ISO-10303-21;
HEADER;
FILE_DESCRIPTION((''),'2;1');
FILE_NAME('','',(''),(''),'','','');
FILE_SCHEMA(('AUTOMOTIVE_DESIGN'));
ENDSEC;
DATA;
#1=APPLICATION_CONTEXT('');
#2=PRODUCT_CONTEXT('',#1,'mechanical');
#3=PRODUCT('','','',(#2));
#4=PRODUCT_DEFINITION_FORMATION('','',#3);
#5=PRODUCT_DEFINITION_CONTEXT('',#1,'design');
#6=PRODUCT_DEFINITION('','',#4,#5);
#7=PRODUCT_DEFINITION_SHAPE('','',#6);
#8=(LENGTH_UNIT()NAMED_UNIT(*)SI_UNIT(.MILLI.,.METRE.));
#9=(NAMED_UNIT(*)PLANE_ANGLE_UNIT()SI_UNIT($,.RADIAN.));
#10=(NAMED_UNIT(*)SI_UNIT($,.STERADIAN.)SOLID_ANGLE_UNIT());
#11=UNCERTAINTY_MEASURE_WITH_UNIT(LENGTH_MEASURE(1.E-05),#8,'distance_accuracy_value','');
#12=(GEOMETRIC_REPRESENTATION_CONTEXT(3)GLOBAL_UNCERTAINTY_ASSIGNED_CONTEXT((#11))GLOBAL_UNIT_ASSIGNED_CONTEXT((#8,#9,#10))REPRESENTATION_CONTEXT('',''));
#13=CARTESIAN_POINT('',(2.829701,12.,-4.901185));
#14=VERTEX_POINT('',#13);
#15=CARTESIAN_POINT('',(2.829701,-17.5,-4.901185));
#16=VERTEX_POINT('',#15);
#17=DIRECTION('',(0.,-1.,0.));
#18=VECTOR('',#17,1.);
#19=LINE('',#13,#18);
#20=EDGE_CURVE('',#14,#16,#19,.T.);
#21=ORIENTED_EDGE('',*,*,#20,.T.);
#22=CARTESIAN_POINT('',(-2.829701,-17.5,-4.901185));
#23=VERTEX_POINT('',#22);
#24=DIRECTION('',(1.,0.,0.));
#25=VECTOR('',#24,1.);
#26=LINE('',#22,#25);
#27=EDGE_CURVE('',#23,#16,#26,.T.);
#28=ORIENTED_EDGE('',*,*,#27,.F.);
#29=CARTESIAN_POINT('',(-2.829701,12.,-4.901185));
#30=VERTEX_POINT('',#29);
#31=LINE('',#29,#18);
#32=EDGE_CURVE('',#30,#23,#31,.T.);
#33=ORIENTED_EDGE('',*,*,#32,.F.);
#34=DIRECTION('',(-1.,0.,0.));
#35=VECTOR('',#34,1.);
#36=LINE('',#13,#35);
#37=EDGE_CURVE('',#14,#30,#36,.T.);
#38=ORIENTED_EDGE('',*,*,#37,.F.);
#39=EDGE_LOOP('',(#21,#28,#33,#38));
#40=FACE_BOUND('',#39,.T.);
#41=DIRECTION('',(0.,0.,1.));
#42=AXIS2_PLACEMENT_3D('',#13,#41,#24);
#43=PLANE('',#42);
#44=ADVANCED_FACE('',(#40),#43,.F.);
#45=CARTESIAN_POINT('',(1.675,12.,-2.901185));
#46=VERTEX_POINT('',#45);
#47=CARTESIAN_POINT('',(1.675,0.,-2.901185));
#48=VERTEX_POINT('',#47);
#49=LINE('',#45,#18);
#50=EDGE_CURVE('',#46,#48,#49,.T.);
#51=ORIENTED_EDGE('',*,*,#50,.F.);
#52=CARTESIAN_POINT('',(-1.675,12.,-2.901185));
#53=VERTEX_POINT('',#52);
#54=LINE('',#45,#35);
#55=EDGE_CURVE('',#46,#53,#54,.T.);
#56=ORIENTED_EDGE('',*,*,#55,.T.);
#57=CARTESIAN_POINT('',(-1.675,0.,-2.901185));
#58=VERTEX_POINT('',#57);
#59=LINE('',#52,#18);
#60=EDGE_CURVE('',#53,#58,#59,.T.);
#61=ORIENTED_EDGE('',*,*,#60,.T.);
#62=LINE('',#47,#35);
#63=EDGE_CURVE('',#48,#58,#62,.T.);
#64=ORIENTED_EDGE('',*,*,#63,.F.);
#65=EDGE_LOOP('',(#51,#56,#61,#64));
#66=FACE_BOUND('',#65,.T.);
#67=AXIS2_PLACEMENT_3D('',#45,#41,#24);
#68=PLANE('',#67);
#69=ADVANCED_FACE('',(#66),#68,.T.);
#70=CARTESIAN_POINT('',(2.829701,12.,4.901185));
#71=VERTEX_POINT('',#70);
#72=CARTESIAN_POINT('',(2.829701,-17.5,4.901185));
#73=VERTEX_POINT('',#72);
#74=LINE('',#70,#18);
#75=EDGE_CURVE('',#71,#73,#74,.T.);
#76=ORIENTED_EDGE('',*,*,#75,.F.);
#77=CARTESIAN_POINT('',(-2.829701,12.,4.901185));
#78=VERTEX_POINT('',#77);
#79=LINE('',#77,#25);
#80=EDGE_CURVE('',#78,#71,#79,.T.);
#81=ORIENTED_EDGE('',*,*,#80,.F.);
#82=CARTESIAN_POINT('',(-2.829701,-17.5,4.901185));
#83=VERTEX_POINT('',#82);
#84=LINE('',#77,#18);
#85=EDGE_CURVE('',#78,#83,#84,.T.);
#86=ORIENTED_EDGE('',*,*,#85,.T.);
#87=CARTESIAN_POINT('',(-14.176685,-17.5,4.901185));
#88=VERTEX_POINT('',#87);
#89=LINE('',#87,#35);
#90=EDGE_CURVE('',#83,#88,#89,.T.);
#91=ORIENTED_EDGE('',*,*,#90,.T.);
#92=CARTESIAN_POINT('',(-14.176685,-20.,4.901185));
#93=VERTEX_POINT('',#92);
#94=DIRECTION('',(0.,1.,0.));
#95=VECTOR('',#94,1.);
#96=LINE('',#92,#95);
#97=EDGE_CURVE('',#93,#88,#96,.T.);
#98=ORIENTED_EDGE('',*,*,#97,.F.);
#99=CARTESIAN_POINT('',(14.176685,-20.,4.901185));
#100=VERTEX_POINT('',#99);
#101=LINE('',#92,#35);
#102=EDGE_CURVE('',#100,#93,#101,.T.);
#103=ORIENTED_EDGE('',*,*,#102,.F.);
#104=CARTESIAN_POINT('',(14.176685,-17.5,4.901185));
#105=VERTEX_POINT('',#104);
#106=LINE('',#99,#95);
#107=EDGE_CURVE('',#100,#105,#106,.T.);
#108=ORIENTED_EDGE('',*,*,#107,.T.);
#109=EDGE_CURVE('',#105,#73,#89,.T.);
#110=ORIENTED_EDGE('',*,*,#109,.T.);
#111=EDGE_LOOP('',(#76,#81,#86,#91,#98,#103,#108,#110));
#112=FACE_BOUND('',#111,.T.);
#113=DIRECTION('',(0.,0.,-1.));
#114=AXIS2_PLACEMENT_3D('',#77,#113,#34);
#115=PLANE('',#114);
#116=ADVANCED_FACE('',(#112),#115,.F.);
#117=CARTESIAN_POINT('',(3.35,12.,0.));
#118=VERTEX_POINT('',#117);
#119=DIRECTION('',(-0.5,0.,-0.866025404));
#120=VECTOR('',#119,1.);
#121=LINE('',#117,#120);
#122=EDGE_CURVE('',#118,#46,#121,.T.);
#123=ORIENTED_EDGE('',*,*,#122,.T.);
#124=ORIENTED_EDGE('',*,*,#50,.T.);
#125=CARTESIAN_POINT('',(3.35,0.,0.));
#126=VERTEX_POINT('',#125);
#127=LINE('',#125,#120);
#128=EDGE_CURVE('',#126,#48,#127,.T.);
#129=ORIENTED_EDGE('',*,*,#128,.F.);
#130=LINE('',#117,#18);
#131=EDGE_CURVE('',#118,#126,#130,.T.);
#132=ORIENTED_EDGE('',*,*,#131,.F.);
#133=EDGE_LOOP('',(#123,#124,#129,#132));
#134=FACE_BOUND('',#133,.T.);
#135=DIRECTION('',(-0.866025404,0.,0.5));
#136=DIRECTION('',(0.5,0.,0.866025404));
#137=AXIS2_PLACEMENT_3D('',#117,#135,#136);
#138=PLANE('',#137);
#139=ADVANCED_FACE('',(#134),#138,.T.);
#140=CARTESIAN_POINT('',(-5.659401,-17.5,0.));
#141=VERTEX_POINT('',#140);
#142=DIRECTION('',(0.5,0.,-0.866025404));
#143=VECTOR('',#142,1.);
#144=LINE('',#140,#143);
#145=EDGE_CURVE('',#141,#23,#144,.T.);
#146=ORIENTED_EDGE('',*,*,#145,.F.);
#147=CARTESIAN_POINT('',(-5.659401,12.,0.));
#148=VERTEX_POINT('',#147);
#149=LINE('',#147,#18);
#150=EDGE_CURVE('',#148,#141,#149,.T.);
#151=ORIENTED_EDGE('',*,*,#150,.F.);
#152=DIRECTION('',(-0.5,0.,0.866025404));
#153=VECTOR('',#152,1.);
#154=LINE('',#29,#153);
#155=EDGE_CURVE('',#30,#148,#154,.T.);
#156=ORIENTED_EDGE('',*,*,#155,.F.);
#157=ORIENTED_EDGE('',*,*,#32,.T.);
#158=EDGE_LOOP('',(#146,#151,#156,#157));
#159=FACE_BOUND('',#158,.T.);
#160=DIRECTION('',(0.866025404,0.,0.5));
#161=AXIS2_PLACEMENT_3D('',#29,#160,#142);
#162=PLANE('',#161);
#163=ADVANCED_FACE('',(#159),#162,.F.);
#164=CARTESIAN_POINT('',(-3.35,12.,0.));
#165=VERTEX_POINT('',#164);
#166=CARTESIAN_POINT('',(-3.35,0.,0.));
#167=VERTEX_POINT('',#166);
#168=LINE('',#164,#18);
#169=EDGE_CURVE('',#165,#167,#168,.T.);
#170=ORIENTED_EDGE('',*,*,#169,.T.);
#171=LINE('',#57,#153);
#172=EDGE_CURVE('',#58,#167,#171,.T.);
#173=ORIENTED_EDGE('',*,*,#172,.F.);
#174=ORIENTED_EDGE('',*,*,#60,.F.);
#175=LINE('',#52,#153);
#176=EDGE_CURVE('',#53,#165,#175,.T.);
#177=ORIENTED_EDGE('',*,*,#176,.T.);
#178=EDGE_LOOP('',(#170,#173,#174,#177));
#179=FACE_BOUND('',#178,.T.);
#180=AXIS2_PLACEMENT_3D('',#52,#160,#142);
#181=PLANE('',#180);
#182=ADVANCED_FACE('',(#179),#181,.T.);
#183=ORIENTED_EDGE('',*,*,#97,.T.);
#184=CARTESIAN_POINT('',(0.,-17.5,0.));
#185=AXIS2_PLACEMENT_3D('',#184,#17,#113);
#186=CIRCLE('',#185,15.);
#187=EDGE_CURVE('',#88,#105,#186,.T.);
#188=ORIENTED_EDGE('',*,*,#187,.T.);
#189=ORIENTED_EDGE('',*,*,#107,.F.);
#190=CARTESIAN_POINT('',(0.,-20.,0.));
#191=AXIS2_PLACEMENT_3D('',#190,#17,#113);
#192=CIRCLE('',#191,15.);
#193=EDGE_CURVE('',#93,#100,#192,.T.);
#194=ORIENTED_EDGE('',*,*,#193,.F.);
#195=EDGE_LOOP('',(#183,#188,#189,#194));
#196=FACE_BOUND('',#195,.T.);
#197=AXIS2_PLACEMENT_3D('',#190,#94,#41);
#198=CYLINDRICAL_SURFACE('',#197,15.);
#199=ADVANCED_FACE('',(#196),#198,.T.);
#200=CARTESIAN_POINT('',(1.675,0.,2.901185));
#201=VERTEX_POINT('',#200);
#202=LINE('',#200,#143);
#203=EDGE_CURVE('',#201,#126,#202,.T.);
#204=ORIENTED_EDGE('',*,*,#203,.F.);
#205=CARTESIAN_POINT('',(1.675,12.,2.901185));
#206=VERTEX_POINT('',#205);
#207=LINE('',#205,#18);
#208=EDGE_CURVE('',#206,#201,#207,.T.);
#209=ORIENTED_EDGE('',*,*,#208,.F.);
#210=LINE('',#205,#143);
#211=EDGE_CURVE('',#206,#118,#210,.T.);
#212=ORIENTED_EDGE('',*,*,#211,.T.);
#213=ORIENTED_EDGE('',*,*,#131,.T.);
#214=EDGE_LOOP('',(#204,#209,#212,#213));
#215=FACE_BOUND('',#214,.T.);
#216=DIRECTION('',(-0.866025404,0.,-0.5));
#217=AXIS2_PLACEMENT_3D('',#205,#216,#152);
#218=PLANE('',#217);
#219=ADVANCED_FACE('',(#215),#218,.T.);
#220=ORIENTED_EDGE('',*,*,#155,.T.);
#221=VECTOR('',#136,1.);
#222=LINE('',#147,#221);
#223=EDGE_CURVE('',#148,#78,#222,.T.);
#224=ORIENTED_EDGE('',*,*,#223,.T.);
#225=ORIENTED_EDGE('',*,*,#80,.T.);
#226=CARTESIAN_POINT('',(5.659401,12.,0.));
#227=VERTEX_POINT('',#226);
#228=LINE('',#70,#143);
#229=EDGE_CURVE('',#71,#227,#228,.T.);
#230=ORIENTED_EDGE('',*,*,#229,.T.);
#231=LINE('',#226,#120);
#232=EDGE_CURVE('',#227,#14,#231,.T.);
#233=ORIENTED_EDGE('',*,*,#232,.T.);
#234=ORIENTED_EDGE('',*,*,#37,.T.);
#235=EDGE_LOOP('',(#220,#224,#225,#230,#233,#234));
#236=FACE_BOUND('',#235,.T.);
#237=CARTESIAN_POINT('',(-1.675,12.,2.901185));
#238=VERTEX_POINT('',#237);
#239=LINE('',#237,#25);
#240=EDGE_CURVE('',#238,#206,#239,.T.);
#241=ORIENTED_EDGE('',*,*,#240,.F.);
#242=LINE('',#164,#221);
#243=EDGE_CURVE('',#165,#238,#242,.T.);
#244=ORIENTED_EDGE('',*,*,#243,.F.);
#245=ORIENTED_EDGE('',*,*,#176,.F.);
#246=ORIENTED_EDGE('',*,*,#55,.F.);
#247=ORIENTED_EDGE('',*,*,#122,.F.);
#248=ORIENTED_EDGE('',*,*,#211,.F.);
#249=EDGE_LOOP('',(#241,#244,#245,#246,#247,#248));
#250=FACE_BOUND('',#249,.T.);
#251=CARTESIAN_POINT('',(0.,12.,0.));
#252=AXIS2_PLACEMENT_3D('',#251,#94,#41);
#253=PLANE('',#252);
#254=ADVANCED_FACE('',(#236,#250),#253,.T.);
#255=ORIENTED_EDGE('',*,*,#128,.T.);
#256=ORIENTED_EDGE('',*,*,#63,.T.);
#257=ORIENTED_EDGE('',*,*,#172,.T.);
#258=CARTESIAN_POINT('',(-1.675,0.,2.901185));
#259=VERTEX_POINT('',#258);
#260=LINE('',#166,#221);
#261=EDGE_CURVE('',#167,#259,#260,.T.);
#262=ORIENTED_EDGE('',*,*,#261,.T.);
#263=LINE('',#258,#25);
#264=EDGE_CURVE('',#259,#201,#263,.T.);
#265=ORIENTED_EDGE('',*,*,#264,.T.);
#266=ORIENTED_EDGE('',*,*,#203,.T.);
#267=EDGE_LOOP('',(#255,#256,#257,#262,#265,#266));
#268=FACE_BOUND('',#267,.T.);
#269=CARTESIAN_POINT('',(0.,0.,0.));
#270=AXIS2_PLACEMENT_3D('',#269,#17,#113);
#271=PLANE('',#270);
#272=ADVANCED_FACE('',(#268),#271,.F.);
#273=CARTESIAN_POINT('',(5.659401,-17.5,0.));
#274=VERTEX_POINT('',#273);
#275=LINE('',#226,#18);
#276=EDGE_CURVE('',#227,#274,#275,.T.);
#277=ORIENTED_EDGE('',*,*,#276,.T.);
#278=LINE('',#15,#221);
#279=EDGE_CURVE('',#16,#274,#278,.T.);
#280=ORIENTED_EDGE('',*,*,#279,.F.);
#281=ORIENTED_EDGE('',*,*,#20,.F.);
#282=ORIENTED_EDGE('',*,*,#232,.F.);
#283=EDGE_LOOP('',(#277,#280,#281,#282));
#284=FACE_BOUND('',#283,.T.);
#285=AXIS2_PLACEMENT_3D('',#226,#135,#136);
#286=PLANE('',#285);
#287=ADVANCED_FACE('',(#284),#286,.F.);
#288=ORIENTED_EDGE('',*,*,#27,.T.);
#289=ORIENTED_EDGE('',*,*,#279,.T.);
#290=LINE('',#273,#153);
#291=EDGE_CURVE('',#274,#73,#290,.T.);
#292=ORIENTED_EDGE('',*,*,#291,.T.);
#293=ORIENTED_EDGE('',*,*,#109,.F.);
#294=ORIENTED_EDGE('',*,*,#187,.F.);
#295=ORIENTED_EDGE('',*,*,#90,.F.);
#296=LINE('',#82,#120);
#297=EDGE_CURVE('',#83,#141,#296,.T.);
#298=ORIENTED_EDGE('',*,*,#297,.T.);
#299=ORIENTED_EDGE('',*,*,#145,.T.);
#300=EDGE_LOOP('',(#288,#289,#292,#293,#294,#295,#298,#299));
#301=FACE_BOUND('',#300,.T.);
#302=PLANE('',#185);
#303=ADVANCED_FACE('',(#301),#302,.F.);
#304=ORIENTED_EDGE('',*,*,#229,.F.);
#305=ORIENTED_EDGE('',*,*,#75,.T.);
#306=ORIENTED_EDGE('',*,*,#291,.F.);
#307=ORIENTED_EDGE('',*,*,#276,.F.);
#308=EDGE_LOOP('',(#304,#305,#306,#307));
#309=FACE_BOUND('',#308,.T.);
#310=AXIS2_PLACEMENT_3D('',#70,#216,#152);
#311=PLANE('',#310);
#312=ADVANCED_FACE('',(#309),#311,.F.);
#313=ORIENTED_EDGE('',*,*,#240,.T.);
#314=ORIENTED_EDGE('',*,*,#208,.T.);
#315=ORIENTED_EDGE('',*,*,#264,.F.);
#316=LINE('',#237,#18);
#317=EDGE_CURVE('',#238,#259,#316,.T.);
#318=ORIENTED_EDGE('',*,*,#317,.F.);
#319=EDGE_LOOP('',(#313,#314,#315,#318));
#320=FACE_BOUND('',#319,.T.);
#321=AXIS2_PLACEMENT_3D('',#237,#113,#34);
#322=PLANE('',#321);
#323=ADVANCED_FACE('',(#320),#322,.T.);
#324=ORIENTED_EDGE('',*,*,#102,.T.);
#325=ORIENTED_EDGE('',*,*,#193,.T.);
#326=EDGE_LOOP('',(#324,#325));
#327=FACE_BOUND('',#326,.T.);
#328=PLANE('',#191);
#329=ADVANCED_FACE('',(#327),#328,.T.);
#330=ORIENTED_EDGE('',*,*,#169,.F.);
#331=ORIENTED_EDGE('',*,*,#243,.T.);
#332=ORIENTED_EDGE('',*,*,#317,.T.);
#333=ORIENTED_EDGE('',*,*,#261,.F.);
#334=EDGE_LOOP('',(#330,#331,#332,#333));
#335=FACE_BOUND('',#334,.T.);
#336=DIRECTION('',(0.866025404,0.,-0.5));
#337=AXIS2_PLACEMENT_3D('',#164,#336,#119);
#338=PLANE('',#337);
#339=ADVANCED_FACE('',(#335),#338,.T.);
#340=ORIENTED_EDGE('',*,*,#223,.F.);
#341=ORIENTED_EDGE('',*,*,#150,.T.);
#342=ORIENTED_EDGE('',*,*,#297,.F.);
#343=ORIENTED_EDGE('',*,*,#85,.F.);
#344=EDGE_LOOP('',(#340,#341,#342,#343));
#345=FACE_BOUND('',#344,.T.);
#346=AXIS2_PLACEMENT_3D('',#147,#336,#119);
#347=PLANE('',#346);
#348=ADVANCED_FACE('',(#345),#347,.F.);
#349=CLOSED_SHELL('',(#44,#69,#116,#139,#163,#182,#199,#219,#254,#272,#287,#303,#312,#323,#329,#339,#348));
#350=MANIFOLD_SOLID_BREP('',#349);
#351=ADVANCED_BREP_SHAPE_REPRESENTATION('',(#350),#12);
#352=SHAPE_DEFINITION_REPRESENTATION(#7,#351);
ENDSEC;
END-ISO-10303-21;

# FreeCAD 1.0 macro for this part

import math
import FreeCAD as App
import Part
import Sketcher

V = App.Vector
Q = App.Units.Quantity

doc = App.newDocument("Part")
body = doc.addObject("PartDesign::Body", "Body")

sketch1 = body.newObject("Sketcher::SketchObject", "Sketch")
sketch1.AttachmentSupport = (doc.getObject("XZ_Plane"), [""])
sketch1.MapMode = "FlatFace"
sketch1.addGeometry(Part.LineSegment(V(-2.8, -4.9, 0), V(-5.7, 0, 0)), False)
sketch1.addGeometry(Part.LineSegment(V(-5.7, 0, 0), V(-2.8, 4.9, 0)), False)
sketch1.addGeometry(Part.LineSegment(V(-2.8, 4.9, 0), V(2.8, 4.9, 0)), False)
sketch1.addGeometry(Part.LineSegment(V(2.8, 4.9, 0), V(5.7, 0, 0)), False)
sketch1.addGeometry(Part.LineSegment(V(5.7, 0, 0), V(2.8, -4.9, 0)), False)
sketch1.addGeometry(Part.LineSegment(V(2.8, -4.9, 0), V(-2.8, -4.9, 0)), False)
sketch1.addGeometry(Part.LineSegment(V(-3.4, 0, 0), V(-1.7, -2.9, 0)), False)
sketch1.addGeometry(Part.LineSegment(V(-1.7, -2.9, 0), V(1.7, -2.9, 0)), False)
sketch1.addGeometry(Part.LineSegment(V(1.7, -2.9, 0), V(3.4, 0, 0)), False)
sketch1.addGeometry(Part.LineSegment(V(3.4, 0, 0), V(1.7, 2.9, 0)), False)
sketch1.addGeometry(Part.LineSegment(V(1.7, 2.9, 0), V(-1.7, 2.9, 0)), False)
sketch1.addGeometry(Part.LineSegment(V(-1.7, 2.9, 0), V(-3.4, 0, 0)), False)
sketch1.addConstraint(Sketcher.Constraint("Coincident", 0, 2, 1, 1))
sketch1.addConstraint(Sketcher.Constraint("Coincident", 1, 2, 2, 1))
sketch1.addConstraint(Sketcher.Constraint("Coincident", 2, 2, 3, 1))
sketch1.addConstraint(Sketcher.Constraint("Coincident", 3, 2, 4, 1))
sketch1.addConstraint(Sketcher.Constraint("Coincident", 4, 2, 5, 1))
sketch1.addConstraint(Sketcher.Constraint("Coincident", 5, 2, 0, 1))
sketch1.addConstraint(Sketcher.Constraint("Coincident", 6, 2, 7, 1))
sketch1.addConstraint(Sketcher.Constraint("Coincident", 7, 2, 8, 1))
sketch1.addConstraint(Sketcher.Constraint("Coincident", 8, 2, 9, 1))
sketch1.addConstraint(Sketcher.Constraint("Coincident", 9, 2, 10, 1))
sketch1.addConstraint(Sketcher.Constraint("Coincident", 10, 2, 11, 1))
sketch1.addConstraint(Sketcher.Constraint("Coincident", 11, 2, 6, 1))
sketch1.addConstraint(Sketcher.Constraint("Horizontal", 2))
sketch1.addConstraint(Sketcher.Constraint("Horizontal", 5))
sketch1.addConstraint(Sketcher.Constraint("Horizontal", 7))
sketch1.addConstraint(Sketcher.Constraint("Horizontal", 10))
sketch1.addConstraint(Sketcher.Constraint("Symmetric", 0, 2, 3, 2, -1, 1))
sketch1.addConstraint(Sketcher.Constraint("Symmetric", 1, 2, 4, 2, -1, 1))
sketch1.addConstraint(Sketcher.Constraint("Symmetric", 6, 2, 9, 2, -1, 1))
sketch1.addConstraint(Sketcher.Constraint("Symmetric", 8, 2, 11, 2, -1, 1))
sketch1.addConstraint(Sketcher.Constraint("PointOnObject", 0, 2, -1))
sketch1.addConstraint(Sketcher.Constraint("PointOnObject", 8, 2, -1))
sketch1.addConstraint(Sketcher.Constraint("Parallel", 0, 3))
sketch1.addConstraint(Sketcher.Constraint("Parallel", 3, 6))
sketch1.addConstraint(Sketcher.Constraint("Parallel", 4, 8))
sketch1.addConstraint(Sketcher.Constraint("Parallel", 8, 11))
sketch1.addConstraint(Sketcher.Constraint("Vertical", 2, 2, 4, 2))
sketch1.addConstraint(Sketcher.Constraint("Angle", 0, Q("120 deg")))
sketch1.addConstraint(Sketcher.Constraint("DistanceY", 5, 2, 6, 2, 2.0))
sketch1.addConstraint(Sketcher.Constraint("DistanceX", 7, 1, 7, 2, 3.35))
sketch1.addConstraint(Sketcher.Constraint("Distance", 6, 3.35))
sketch1.addConstraint(Sketcher.Constraint("DistanceX", 2, 1, 2, 2, 5.659401))
pad1 = body.newObject("PartDesign::Pad", "Pad")
pad1.Profile = sketch1
pad1.Length = 12
pad1.Reversed = True

sketch2 = body.newObject("Sketcher::SketchObject", "Sketch001")
sketch2.AttachmentSupport = (doc.getObject("XZ_Plane"), [""])
sketch2.MapMode = "FlatFace"
sketch2.addGeometry(Part.LineSegment(V(-3, -5, 0), V(3, -5, 0)), False)
sketch2.addGeometry(Part.LineSegment(V(3, -5, 0), V(6, 0, 0)), False)
sketch2.addGeometry(Part.LineSegment(V(6, 0, 0), V(3, 5, 0)), False)
sketch2.addGeometry(Part.LineSegment(V(3, 5, 0), V(-3, 5, 0)), False)
sketch2.addGeometry(Part.LineSegment(V(-3, 5, 0), V(-6, 0, 0)), False)
sketch2.addGeometry(Part.LineSegment(V(-6, 0, 0), V(-3, -5, 0)), False)
sketch2.addConstraint(Sketcher.Constraint("Coincident", 0, 2, 1, 1))
sketch2.addConstraint(Sketcher.Constraint("Coincident", 1, 2, 2, 1))
sketch2.addConstraint(Sketcher.Constraint("Coincident", 2, 2, 3, 1))
sketch2.addConstraint(Sketcher.Constraint("Coincident", 3, 2, 4, 1))
sketch2.addConstraint(Sketcher.Constraint("Coincident", 4, 2, 5, 1))
sketch2.addConstraint(Sketcher.Constraint("Coincident", 5, 2, 0, 1))
sketch2.addConstraint(Sketcher.Constraint("Horizontal", 0))
sketch2.addConstraint(Sketcher.Constraint("Horizontal", 3))
sketch2.addConstraint(Sketcher.Constraint("Symmetric", 0, 2, 3, 2, -1, 1))
sketch2.addConstraint(Sketcher.Constraint("Symmetric", 1, 2, 4, 2, -1, 1))
sketch2.addConstraint(Sketcher.Constraint("PointOnObject", 1, 2, -1))
sketch2.addConstraint(Sketcher.Constraint("Parallel", 2, 5))
sketch2.addConstraint(Sketcher.Constraint("Vertical", 0, 2, 2, 2))
sketch2.addConstraint(Sketcher.Constraint("Angle", 1, Q("60 deg")))
sketch2.addConstraint(Sketcher.Constraint("DistanceX", 0, 1, 0, 2, 5.659401))
sketch2.addConstraint(Sketcher.Constraint("Distance", 1, 5.659401))
pad2 = body.newObject("PartDesign::Pad", "Pad001")
pad2.Profile = sketch2
pad2.Length = 17.5

sketch3 = body.newObject("Sketcher::SketchObject", "Sketch002")
sketch3.AttachmentSupport = (doc.getObject("XZ_Plane"), [""])
sketch3.MapMode = "FlatFace"
sketch3.AttachmentOffset = App.Placement(V(0, 0, 17.5), App.Rotation())
sketch3.addGeometry(Part.LineSegment(V(14, 5, 0), V(-14, 5, 0)), False)
sketch3.addGeometry(Part.ArcOfCircle(Part.Circle(V(0, 0, 0), V(0, 0, 1), 15), math.radians(161), math.radians(379)), False)
sketch3.addConstraint(Sketcher.Constraint("Coincident", 0, 1, 1, 2))
sketch3.addConstraint(Sketcher.Constraint("Coincident", 1, 1, 0, 2))
sketch3.addConstraint(Sketcher.Constraint("Horizontal", 0))
sketch3.addConstraint(Sketcher.Constraint("Coincident", 1, 3, -1, 1))
sketch3.addConstraint(Sketcher.Constraint("Radius", 1, 15.0))
sketch3.addConstraint(Sketcher.Constraint("DistanceX", 0, 2, 0, 1, 28.353369))
pad3 = body.newObject("PartDesign::Pad", "Pad002")
pad3.Profile = sketch3
pad3.Length = 2.5

doc.recompute()
